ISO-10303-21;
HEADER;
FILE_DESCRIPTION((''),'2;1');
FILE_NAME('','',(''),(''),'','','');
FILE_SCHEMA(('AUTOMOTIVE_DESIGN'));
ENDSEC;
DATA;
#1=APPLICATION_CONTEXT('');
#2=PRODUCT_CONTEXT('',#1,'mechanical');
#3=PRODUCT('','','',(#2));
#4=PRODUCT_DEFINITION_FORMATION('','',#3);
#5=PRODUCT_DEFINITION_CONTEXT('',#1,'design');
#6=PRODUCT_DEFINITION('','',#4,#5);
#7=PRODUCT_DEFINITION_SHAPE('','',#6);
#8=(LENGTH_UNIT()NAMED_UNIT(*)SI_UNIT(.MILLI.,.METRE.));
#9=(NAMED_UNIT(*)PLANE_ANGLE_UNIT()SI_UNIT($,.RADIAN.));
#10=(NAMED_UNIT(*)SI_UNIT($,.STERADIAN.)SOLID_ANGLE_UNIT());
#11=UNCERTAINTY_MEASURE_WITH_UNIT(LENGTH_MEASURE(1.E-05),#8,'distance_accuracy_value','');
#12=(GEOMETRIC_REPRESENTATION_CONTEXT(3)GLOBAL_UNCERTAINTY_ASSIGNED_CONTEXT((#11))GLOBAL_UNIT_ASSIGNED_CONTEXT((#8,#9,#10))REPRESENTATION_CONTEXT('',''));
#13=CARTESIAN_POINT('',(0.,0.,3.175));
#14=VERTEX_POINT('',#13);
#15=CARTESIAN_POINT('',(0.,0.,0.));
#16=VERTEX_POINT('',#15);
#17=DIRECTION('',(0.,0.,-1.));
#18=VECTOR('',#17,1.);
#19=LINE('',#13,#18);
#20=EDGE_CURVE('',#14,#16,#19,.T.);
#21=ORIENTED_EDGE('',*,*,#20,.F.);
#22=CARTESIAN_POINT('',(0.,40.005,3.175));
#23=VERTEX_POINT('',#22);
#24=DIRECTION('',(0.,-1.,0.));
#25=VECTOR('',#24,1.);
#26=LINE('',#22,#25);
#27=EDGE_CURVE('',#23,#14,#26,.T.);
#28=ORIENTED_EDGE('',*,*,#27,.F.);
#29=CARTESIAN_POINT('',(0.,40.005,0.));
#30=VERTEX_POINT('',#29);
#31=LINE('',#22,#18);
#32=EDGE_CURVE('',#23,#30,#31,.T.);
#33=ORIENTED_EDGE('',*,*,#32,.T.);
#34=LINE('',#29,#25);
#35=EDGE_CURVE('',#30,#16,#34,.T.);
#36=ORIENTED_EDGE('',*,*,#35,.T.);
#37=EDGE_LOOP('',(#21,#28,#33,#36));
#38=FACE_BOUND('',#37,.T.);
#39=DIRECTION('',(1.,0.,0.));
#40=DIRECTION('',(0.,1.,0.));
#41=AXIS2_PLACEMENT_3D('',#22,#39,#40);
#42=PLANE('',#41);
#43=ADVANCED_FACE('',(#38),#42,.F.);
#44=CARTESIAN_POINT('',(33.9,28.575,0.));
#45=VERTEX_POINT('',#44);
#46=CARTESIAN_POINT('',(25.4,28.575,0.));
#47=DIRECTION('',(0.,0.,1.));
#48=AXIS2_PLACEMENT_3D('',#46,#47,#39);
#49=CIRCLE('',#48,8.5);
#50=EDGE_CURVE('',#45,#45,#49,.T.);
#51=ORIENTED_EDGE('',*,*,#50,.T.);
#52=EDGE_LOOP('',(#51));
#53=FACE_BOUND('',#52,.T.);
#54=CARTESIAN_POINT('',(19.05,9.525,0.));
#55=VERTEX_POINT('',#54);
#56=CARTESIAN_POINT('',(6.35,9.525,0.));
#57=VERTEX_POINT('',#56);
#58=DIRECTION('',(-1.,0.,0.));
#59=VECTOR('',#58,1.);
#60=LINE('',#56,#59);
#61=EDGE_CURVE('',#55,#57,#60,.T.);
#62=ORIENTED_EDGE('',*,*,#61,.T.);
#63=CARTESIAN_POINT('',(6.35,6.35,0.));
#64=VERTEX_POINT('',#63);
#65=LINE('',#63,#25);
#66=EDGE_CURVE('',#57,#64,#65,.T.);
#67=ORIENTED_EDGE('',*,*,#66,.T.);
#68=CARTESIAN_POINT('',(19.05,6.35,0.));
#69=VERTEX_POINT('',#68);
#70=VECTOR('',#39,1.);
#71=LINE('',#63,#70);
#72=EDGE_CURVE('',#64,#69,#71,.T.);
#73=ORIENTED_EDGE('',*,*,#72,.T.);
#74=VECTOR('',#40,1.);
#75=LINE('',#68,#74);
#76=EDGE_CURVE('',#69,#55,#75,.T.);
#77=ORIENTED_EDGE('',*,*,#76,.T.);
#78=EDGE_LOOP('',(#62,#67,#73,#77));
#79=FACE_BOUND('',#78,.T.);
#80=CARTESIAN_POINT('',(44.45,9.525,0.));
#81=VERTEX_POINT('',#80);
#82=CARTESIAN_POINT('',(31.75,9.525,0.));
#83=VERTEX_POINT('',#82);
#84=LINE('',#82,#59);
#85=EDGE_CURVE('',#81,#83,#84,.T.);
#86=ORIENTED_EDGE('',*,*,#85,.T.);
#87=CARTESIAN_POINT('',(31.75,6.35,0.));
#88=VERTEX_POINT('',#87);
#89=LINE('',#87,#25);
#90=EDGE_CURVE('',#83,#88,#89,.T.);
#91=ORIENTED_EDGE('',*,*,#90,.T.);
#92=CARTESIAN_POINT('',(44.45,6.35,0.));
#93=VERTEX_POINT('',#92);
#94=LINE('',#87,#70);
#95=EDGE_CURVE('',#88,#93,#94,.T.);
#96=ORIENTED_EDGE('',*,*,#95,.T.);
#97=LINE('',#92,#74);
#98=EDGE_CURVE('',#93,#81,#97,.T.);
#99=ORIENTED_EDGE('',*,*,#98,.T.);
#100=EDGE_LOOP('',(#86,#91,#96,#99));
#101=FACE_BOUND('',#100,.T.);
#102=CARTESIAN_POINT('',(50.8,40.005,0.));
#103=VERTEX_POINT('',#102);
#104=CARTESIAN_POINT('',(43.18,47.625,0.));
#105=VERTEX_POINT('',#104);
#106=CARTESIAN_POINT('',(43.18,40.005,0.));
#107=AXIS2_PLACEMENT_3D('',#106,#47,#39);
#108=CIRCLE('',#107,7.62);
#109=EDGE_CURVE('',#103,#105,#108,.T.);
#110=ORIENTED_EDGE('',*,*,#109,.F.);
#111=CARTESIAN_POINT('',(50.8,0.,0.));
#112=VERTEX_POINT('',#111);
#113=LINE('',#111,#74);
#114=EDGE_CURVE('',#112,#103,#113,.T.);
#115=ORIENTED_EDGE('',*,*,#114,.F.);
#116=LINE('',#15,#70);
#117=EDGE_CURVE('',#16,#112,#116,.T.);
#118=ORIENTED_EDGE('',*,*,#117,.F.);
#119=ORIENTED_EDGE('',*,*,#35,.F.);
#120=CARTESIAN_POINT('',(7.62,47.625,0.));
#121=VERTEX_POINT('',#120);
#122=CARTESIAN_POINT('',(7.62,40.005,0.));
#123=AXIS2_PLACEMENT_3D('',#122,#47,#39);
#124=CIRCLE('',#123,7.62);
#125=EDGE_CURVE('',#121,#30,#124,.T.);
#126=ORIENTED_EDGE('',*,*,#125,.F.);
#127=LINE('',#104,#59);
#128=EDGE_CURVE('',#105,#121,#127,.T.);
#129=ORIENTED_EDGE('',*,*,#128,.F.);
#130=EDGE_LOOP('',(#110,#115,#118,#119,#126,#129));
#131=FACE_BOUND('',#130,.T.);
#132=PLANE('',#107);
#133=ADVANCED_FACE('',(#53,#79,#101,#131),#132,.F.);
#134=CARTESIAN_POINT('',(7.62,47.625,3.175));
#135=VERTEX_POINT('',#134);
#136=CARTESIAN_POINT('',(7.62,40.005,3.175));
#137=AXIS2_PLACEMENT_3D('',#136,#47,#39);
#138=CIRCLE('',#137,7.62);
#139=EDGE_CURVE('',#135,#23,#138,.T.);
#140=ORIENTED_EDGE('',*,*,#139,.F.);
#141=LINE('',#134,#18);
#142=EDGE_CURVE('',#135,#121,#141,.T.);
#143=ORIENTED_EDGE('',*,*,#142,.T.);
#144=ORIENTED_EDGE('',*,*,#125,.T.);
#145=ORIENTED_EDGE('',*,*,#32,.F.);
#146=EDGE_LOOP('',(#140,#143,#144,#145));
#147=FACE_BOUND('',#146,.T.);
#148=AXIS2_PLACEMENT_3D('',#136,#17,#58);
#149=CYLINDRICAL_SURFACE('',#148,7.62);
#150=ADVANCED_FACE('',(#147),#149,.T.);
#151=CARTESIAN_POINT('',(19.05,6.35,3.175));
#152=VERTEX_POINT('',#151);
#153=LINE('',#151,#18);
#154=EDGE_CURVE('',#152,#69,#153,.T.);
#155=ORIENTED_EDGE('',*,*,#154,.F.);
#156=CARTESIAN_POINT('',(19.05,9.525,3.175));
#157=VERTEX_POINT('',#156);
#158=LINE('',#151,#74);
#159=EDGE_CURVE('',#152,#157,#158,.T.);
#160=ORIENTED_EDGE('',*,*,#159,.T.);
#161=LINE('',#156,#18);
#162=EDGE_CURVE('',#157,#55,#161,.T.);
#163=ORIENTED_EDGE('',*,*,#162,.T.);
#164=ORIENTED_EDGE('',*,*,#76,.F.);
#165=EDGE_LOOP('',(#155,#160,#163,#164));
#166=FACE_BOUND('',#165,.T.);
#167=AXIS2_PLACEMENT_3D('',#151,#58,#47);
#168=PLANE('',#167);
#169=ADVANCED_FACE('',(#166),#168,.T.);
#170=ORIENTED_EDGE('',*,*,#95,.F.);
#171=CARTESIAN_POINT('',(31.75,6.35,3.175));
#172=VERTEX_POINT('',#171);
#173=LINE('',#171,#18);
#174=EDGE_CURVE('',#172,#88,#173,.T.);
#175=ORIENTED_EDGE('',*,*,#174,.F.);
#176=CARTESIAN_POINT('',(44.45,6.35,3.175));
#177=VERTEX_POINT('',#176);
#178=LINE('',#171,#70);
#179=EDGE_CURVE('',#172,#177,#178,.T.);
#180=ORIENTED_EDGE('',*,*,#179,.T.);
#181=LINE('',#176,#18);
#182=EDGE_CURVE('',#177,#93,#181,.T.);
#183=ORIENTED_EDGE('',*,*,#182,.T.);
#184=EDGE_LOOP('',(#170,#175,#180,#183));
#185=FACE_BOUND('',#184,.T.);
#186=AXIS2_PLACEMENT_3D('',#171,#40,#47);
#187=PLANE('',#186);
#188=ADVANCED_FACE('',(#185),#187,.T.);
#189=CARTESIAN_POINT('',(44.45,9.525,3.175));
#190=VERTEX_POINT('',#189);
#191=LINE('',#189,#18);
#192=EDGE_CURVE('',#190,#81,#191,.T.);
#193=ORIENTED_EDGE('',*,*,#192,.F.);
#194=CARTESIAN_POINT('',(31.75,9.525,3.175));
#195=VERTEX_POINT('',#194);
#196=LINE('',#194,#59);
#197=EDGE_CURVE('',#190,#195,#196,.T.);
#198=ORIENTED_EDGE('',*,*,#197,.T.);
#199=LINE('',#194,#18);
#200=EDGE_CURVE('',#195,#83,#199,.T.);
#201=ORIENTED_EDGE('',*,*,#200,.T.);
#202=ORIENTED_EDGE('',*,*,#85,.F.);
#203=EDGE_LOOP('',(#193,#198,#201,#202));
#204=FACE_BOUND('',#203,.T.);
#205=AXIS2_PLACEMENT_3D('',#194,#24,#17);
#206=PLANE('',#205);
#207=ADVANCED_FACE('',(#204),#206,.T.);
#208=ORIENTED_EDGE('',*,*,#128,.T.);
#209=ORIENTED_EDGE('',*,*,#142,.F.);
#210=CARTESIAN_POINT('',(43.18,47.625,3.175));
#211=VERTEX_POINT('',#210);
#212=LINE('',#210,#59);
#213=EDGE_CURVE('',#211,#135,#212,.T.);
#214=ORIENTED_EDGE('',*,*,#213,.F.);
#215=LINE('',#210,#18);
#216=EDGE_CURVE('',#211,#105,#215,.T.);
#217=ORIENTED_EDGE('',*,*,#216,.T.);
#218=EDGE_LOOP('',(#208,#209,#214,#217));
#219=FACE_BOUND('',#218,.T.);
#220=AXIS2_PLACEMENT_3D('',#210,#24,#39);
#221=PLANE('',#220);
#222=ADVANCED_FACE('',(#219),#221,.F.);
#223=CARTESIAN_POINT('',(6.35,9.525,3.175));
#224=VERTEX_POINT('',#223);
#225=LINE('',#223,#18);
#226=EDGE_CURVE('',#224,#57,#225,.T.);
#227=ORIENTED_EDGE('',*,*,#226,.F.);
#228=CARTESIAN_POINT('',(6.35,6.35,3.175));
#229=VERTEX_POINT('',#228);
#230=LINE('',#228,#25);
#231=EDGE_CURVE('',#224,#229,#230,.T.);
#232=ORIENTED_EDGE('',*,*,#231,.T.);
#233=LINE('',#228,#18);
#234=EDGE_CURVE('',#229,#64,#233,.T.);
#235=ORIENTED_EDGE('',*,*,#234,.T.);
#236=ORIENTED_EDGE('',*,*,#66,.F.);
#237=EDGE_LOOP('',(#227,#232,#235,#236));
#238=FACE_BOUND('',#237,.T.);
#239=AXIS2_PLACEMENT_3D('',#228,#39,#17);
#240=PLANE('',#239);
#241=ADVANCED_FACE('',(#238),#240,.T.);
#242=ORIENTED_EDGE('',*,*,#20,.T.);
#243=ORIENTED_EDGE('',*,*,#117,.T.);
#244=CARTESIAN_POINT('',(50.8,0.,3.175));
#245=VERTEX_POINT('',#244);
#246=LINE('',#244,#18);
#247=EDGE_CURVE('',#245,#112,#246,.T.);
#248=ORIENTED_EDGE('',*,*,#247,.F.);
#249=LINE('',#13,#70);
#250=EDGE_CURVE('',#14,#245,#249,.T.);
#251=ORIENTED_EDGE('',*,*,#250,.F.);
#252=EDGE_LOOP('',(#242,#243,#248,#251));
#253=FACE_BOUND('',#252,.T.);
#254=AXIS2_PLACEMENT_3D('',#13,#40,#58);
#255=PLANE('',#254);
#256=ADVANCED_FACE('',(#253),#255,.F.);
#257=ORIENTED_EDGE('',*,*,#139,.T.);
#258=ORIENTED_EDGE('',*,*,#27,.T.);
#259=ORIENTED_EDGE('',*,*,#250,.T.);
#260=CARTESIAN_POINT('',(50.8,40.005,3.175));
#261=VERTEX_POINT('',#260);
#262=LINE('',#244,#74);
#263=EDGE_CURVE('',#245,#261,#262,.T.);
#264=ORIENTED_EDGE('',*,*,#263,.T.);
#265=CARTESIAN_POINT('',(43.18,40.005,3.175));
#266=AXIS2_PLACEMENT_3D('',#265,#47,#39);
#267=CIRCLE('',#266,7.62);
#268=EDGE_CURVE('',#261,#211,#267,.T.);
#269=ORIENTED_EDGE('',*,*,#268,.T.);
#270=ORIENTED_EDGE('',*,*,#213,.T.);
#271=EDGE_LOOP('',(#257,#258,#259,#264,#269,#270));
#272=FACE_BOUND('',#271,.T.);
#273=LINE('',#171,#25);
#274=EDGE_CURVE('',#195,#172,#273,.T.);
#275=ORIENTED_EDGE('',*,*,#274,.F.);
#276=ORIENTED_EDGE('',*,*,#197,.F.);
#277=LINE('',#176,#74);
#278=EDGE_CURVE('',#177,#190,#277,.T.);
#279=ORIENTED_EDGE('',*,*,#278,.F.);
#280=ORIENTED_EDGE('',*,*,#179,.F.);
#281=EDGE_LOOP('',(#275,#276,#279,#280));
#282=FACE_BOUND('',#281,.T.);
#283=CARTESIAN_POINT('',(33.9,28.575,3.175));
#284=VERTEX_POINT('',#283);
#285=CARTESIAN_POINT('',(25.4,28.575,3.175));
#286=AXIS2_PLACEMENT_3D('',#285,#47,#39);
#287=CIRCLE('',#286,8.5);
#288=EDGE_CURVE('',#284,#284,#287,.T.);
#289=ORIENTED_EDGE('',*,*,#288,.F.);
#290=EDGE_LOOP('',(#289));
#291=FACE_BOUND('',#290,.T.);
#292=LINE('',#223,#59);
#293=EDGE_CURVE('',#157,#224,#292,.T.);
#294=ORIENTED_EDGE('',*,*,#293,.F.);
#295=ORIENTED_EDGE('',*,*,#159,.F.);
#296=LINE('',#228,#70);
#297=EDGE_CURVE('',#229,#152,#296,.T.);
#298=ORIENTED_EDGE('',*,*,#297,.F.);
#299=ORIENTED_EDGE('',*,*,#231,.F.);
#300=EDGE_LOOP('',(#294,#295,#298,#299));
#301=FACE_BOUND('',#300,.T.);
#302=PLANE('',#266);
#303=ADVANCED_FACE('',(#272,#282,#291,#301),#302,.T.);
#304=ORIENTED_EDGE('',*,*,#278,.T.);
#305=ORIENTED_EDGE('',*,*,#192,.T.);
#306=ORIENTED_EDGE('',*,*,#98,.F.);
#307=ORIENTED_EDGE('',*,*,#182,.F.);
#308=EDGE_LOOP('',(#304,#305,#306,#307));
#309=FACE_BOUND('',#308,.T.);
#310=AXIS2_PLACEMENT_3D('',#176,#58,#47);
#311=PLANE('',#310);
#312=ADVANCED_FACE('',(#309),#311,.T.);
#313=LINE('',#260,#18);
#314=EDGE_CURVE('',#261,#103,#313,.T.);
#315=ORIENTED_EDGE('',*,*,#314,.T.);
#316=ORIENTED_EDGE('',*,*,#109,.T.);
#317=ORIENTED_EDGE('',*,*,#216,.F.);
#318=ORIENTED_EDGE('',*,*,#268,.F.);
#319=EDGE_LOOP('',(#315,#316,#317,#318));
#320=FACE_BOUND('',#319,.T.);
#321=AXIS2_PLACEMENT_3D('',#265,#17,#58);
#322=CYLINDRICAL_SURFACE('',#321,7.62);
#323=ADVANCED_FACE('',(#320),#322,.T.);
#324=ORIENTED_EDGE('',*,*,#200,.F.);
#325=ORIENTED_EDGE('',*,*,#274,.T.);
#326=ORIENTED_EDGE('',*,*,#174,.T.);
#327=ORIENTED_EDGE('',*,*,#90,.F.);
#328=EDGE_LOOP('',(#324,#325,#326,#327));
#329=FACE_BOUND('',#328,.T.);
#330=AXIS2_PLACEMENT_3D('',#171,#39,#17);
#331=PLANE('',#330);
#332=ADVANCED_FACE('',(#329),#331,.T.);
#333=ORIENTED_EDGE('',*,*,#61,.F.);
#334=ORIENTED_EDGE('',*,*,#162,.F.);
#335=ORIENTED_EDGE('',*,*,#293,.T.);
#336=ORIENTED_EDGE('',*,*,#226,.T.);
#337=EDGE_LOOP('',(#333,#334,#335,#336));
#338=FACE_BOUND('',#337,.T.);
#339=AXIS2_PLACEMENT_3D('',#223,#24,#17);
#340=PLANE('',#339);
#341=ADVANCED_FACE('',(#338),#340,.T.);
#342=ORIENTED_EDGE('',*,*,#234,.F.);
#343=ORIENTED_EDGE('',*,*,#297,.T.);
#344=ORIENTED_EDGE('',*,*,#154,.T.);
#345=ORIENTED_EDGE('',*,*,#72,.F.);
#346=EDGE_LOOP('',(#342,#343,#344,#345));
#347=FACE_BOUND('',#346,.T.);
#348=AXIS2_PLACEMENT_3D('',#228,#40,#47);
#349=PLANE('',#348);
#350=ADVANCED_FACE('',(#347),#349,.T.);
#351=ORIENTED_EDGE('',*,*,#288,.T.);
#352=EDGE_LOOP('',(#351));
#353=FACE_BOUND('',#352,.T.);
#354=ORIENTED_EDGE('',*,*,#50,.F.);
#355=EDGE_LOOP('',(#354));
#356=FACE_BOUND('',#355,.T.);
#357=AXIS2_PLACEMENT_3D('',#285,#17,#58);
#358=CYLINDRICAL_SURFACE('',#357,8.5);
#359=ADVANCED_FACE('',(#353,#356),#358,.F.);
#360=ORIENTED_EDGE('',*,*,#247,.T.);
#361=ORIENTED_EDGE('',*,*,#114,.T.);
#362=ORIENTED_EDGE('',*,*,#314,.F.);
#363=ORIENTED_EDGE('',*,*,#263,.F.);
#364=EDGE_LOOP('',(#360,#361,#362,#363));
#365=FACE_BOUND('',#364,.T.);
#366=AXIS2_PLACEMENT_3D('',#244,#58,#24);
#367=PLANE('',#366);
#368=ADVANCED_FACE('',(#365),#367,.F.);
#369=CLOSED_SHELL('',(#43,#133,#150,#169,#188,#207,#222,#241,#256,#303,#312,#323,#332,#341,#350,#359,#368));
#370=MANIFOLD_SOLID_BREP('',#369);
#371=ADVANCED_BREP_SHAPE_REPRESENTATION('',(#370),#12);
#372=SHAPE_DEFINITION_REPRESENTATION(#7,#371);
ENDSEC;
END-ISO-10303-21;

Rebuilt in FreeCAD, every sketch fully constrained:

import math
import FreeCAD as App
import Part
import Sketcher
from FreeCAD import Vector
Q = App.Units.Quantity

doc = App.newDocument("Part")
body = doc.addObject("PartDesign::Body", "Body")

sketch1 = body.newObject("Sketcher::SketchObject", "Sketch")
sketch1.AttachmentSupport = (doc.getObject("XY_Plane"), [""])
sketch1.MapMode = "FlatFace"
sketch1.addGeometry(Part.LineSegment(Vector(50.8, 0, 0), Vector(50.8, 40, 0)), False)
sketch1.addGeometry(Part.ArcOfCircle(Part.Circle(Vector(43.2, 40, 0), Vector(0, 0, 1), 7.6), math.radians(0), math.radians(90)), False)
sketch1.addGeometry(Part.LineSegment(Vector(43.2, 47.6, 0), Vector(7.6, 47.6, 0)), False)
sketch1.addGeometry(Part.ArcOfCircle(Part.Circle(Vector(7.6, 40, 0), Vector(0, 0, 1), 7.6), math.radians(90), math.radians(180)), False)
sketch1.addGeometry(Part.LineSegment(Vector(0, 40, 0), Vector(0, 0, 0)), False)
sketch1.addGeometry(Part.LineSegment(Vector(0, 0, 0), Vector(50.8, 0, 0)), False)
sketch1.addGeometry(Part.LineSegment(Vector(19.1, 6.3, 0), Vector(6.3, 6.3, 0)), False)
sketch1.addGeometry(Part.LineSegment(Vector(6.3, 6.3, 0), Vector(6.3, 9.5, 0)), False)
sketch1.addGeometry(Part.LineSegment(Vector(6.3, 9.5, 0), Vector(19.1, 9.5, 0)), False)
sketch1.addGeometry(Part.LineSegment(Vector(19.1, 9.5, 0), Vector(19.1, 6.3, 0)), False)
sketch1.addGeometry(Part.LineSegment(Vector(44.5, 6.3, 0), Vector(31.8, 6.3, 0)), False)
sketch1.addGeometry(Part.LineSegment(Vector(31.8, 6.3, 0), Vector(31.8, 9.5, 0)), False)
sketch1.addGeometry(Part.LineSegment(Vector(31.8, 9.5, 0), Vector(44.5, 9.5, 0)), False)
sketch1.addGeometry(Part.LineSegment(Vector(44.5, 9.5, 0), Vector(44.5, 6.3, 0)), False)
sketch1.addGeometry(Part.Circle(Vector(25.4, 28.6, 0), Vector(0, 0, 1), 8.5), False)
sketch1.addConstraint(Sketcher.Constraint("Tangent", 0, 2, 1, 1))
sketch1.addConstraint(Sketcher.Constraint("Tangent", 1, 2, 2, 1))
sketch1.addConstraint(Sketcher.Constraint("Tangent", 2, 2, 3, 1))
sketch1.addConstraint(Sketcher.Constraint("Tangent", 3, 2, 4, 1))
sketch1.addConstraint(Sketcher.Constraint("Coincident", 4, 2, 5, 1))
sketch1.addConstraint(Sketcher.Constraint("Coincident", 5, 2, 0, 1))
sketch1.addConstraint(Sketcher.Constraint("Coincident", 6, 2, 7, 1))
sketch1.addConstraint(Sketcher.Constraint("Coincident", 7, 2, 8, 1))
sketch1.addConstraint(Sketcher.Constraint("Coincident", 8, 2, 9, 1))
sketch1.addConstraint(Sketcher.Constraint("Coincident", 9, 2, 6, 1))
sketch1.addConstraint(Sketcher.Constraint("Coincident", 10, 2, 11, 1))
sketch1.addConstraint(Sketcher.Constraint("Coincident", 11, 2, 12, 1))
sketch1.addConstraint(Sketcher.Constraint("Coincident", 12, 2, 13, 1))
sketch1.addConstraint(Sketcher.Constraint("Coincident", 13, 2, 10, 1))
sketch1.addConstraint(Sketcher.Constraint("Vertical", 0))
sketch1.addConstraint(Sketcher.Constraint("Horizontal", 2))
sketch1.addConstraint(Sketcher.Constraint("Vertical", 4))
sketch1.addConstraint(Sketcher.Constraint("Horizontal", 5))
sketch1.addConstraint(Sketcher.Constraint("Horizontal", 6))
sketch1.addConstraint(Sketcher.Constraint("Vertical", 7))
sketch1.addConstraint(Sketcher.Constraint("Horizontal", 8))
sketch1.addConstraint(Sketcher.Constraint("Vertical", 9))
sketch1.addConstraint(Sketcher.Constraint("Horizontal", 10))
sketch1.addConstraint(Sketcher.Constraint("Vertical", 11))
sketch1.addConstraint(Sketcher.Constraint("Horizontal", 12))
sketch1.addConstraint(Sketcher.Constraint("Vertical", 13))
sketch1.addConstraint(Sketcher.Constraint("Coincident", 4, 2, -1, 1))
sketch1.addConstraint(Sketcher.Constraint("Equal", 1, 3))
sketch1.addConstraint(Sketcher.Constraint("Horizontal", 9, 2, 10, 2))
sketch1.addConstraint(Sketcher.Constraint("Horizontal", 8, 2, 11, 2))
sketch1.addConstraint(Sketcher.Constraint("Equal", 8, 10))
sketch1.addConstraint(Sketcher.Constraint("Radius", 1, Q("0.3 in")))
sketch1.addConstraint(Sketcher.Constraint("DistanceX", 5, 1, 5, 2, Q("2 in")))
sketch1.addConstraint(Sketcher.Constraint("DistanceX", 6, 2, 6, 1, Q("0.5 in")))
sketch1.addConstraint(Sketcher.Constraint("DistanceX", -1, 1, 14, 3, Q("1 in")))
sketch1.addConstraint(Sketcher.Constraint("DistanceX", 6, 2, 10, 2, Q("1 in")))
sketch1.addConstraint(Sketcher.Constraint("DistanceY", 7, 2, 3, 3, Q("1.2 in")))
sketch1.addConstraint(Sketcher.Constraint("Diameter", 14, 17.0))
sketch1.addConstraint(Sketcher.Constraint("DistanceY", 0, 1, 0, 2, Q("1.575 in")))
sketch1.addConstraint(Sketcher.Constraint("DistanceY", 7, 1, 7, 2, Q("0.125 in")))
sketch1.addConstraint(Sketcher.Constraint("DistanceX", -1, 1, 6, 2, Q("0.25 in")))
sketch1.addConstraint(Sketcher.Constraint("DistanceY", 14, 3, 3, 3, Q("0.45 in")))
pad1 = body.newObject("PartDesign::Pad", "Pad")
pad1.Profile = sketch1
pad1.Length = Q("0.125 in")

doc.recompute()
